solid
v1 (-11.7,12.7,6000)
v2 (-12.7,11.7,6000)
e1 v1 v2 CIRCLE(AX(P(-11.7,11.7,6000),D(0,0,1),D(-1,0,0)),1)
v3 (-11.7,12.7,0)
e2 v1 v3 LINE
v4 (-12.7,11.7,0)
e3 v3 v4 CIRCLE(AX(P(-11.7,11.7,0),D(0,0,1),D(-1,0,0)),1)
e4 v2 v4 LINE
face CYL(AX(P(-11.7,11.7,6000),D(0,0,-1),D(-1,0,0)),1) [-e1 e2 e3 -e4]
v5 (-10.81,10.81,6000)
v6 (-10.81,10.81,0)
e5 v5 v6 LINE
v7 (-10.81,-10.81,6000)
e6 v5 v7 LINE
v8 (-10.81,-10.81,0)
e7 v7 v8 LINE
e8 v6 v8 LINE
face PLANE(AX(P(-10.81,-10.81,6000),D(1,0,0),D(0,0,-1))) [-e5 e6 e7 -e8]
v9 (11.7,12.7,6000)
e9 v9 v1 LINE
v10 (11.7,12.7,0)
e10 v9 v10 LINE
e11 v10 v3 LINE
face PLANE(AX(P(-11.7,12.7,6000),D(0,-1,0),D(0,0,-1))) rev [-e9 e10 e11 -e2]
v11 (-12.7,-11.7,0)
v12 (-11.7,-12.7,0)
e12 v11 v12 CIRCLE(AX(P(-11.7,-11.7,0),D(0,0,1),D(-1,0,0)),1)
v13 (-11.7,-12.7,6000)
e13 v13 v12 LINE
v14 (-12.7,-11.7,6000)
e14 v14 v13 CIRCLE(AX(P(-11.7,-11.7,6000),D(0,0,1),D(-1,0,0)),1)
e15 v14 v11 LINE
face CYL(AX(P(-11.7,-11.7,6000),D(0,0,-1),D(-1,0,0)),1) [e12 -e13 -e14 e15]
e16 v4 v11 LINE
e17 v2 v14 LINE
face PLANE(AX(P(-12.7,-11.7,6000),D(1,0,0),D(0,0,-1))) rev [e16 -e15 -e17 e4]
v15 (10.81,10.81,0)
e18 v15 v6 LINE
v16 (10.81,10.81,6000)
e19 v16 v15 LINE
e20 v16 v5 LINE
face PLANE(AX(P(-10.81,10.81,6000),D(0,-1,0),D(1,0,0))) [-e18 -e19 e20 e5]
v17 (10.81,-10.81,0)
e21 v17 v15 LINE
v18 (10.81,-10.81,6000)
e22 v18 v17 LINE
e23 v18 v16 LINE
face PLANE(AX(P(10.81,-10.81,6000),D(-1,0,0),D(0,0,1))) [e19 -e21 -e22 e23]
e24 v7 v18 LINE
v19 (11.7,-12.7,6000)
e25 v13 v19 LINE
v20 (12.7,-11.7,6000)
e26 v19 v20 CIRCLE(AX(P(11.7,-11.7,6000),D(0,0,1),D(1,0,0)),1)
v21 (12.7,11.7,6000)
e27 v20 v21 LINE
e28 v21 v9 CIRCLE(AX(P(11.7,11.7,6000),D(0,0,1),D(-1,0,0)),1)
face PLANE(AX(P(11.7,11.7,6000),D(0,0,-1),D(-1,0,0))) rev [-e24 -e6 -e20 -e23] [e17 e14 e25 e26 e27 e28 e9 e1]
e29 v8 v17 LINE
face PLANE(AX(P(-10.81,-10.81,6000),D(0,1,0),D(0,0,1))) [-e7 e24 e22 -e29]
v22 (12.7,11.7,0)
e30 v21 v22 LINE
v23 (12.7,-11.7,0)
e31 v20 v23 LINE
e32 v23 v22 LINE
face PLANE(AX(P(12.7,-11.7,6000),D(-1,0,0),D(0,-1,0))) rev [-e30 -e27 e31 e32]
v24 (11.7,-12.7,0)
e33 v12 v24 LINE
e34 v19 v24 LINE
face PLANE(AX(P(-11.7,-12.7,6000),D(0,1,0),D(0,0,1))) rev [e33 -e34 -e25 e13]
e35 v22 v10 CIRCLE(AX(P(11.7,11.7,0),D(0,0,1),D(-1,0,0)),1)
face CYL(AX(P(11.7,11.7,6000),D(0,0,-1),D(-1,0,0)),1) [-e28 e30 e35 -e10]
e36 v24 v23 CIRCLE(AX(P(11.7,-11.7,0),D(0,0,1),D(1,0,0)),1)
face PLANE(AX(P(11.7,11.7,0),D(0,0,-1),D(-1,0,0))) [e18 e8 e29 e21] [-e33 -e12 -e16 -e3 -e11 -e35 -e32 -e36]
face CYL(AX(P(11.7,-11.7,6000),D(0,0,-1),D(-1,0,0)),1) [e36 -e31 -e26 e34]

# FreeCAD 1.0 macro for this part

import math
import FreeCAD as App
import Part
import Sketcher
Q = App.Units.Quantity


def add_polygon(sketch, points):
    """Adds a closed chain of lines whose ends are joined by coincident constraints."""
    first, n = sketch.GeometryCount, len(points)
    for a, b in zip(points, points[1:] + points[:1]):
        sketch.addGeometry(Part.LineSegment(App.Vector(*a, 0), App.Vector(*b, 0)), False)
    for i in range(n):
        sketch.addConstraint(Sketcher.Constraint("Coincident", first + i, 2, first + (i + 1) % n, 1))

doc = App.newDocument("Part")
body = doc.addObject("PartDesign::Body", "Body")

# Sketch on XY plane
sketch1 = body.newObject("Sketcher::SketchObject", "Sketch")
sketch1.AttachmentSupport = (doc.getObject("XY_Plane"), [""])
sketch1.MapMode = "FlatFace"
sketch1.addGeometry(Part.LineSegment(App.Vector(-11.7, -12.7, 0), App.Vector(11.7, -12.7, 0)), False)  # 0
sketch1.addGeometry(Part.ArcOfCircle(Part.Circle(App.Vector(11.7, -11.7, 0), App.Vector(0, 0, 1), 1), math.radians(-90), math.radians(0)), False)  # 1
sketch1.addGeometry(Part.LineSegment(App.Vector(12.7, -11.7, 0), App.Vector(12.7, 11.7, 0)), False)  # 2
sketch1.addGeometry(Part.ArcOfCircle(Part.Circle(App.Vector(11.7, 11.7, 0), App.Vector(0, 0, 1), 1), math.radians(0), math.radians(90)), False)  # 3
sketch1.addGeometry(Part.LineSegment(App.Vector(11.7, 12.7, 0), App.Vector(-11.7, 12.7, 0)), False)  # 4
sketch1.addGeometry(Part.ArcOfCircle(Part.Circle(App.Vector(-11.7, 11.7, 0), App.Vector(0, 0, 1), 1), math.radians(90), math.radians(180)), False)  # 5
sketch1.addGeometry(Part.LineSegment(App.Vector(-12.7, 11.7, 0), App.Vector(-12.7, -11.7, 0)), False)  # 6
sketch1.addGeometry(Part.ArcOfCircle(Part.Circle(App.Vector(-11.7, -11.7, 0), App.Vector(0, 0, 1), 1), math.radians(-180), math.radians(-90)), False)  # 7
add_polygon(sketch1, [(10.8, -10.8), (-10.8, -10.8), (-10.8, 10.8), (10.8, 10.8)])  # lines 8-11
sketch1.addConstraint([
    Sketcher.Constraint("Tangent", 0, 2, 1, 1),
    Sketcher.Constraint("Tangent", 1, 2, 2, 1),
    Sketcher.Constraint("Tangent", 2, 2, 3, 1),
    Sketcher.Constraint("Tangent", 3, 2, 4, 1),
    Sketcher.Constraint("Tangent", 4, 2, 5, 1),
    Sketcher.Constraint("Tangent", 5, 2, 6, 1),
    Sketcher.Constraint("Tangent", 6, 2, 7, 1),
    Sketcher.Constraint("Tangent", 7, 2, 0, 1),
    Sketcher.Constraint("Horizontal", 0),
    Sketcher.Constraint("Vertical", 2),
    Sketcher.Constraint("Horizontal", 4),
    Sketcher.Constraint("Vertical", 6),
    Sketcher.Constraint("Horizontal", 8),
    Sketcher.Constraint("Vertical", 9),
    Sketcher.Constraint("Horizontal", 10),
    Sketcher.Constraint("Vertical", 11),
    Sketcher.Constraint("Equal", 1, 3),
    Sketcher.Constraint("Equal", 3, 5),
    Sketcher.Constraint("Equal", 5, 7),
    Sketcher.Constraint("Symmetric", 1, 3, 5, 3, -1, 1),
    Sketcher.Constraint("Symmetric", 8, 2, 10, 2, -1, 1),
    Sketcher.Constraint("Equal", 4, 2),
    Sketcher.Constraint("Equal", 10, 9),
    Sketcher.Constraint("Radius", 1, Q("1 mm")),
    Sketcher.Constraint("DistanceX", 0, 1, 0, 2, Q("23.4 mm")),
    Sketcher.Constraint("DistanceX", 8, 2, 8, 1, Q("21.62 mm")),
])
pad1 = body.newObject("PartDesign::Pad", "Pad")
pad1.Profile = sketch1
pad1.Length = 6000

doc.recompute()
